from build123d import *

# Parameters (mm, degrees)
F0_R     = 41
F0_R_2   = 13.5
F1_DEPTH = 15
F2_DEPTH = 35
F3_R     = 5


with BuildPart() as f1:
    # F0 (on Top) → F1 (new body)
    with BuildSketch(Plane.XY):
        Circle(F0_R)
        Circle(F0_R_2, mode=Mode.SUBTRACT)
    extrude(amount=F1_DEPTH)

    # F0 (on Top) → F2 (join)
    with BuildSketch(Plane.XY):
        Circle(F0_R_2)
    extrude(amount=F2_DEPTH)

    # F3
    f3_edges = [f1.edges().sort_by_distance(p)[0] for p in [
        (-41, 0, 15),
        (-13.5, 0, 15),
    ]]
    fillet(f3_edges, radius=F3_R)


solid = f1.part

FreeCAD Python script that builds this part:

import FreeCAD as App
import Part
import Sketcher
from FreeCAD import Vector
Q = App.Units.Quantity


def edges_at(feature, points):
    """Names of the edges that pass closest to the given points."""
    edges = feature.Shape.Edges
    near = lambda p: min(range(len(edges)), key=lambda i: edges[i].distToShape(Part.Vertex(*p))[0])
    return sorted({f"Edge{near(p) + 1}" for p in points})

doc = App.newDocument("Part")
params = doc.addObject("Spreadsheet::Sheet", "Params")
for row, (alias, value) in enumerate([
    ("sketch1_diameter", "82 mm"),
    ("sketch1_diameter2", "27 mm"),
    ("pad1_length", "15 mm"),
    ("sketch2_diameter", "27 mm"),
    ("pad2_length", "35 mm"),
    ("fillet_radius", "5 mm"),
], start=1):
    params.set(f"A{row}", alias)
    params.set(f"B{row}", "=" + value)
    params.setAlias(f"B{row}", alias)

body = doc.addObject("PartDesign::Body", "Body")

sketch1 = body.newObject("Sketcher::SketchObject", "Sketch")
sketch1.AttachmentSupport = (doc.getObject("XY_Plane"), [""])
sketch1.MapMode = "FlatFace"
sketch1.addGeometry([
    Part.Circle(Vector(0, 0, 0), Vector(0, 0, 1), 41),
    Part.Circle(Vector(0, 0, 0), Vector(0, 0, 1), 14),
], False)
sketch1.addConstraint([
    Sketcher.Constraint("Coincident", 0, 3, -1, 1),
    Sketcher.Constraint("Coincident", 1, 3, -1, 1),
    Sketcher.Constraint("Diameter", 0, Q("82 mm")),
    Sketcher.Constraint("Diameter", 1, Q("27 mm")),
])
sketch1.setExpression("Constraints[2]", "Params.sketch1_diameter")
sketch1.setExpression("Constraints[3]", "Params.sketch1_diameter2")
pad1 = body.newObject("PartDesign::Pad", "Pad")
pad1.Profile = sketch1
pad1.setExpression("Length", "Params.pad1_length")

sketch2 = body.newObject("Sketcher::SketchObject", "Sketch001")
sketch2.AttachmentSupport = (doc.getObject("XY_Plane"), [""])
sketch2.MapMode = "FlatFace"
sketch2.addGeometry(Part.Circle(Vector(0, 0, 0), Vector(0, 0, 1), 14), False)
sketch2.addConstraint([
    Sketcher.Constraint("Coincident", 0, 3, -1, 1),
    Sketcher.Constraint("Diameter", 0, Q("27 mm")),
])
sketch2.setExpression("Constraints[1]", "Params.sketch2_diameter")
pad2 = body.newObject("PartDesign::Pad", "Pad001")
pad2.Profile = sketch2
pad2.setExpression("Length", "Params.pad2_length")
doc.recompute()

fillet = body.newObject("PartDesign::Fillet", "Fillet")
fillet.Base = (pad2, edges_at(pad2, [(-41, 0, 15), (-13.5, 0, 15)]))
fillet.setExpression("Radius", "Params.fillet_radius")

doc.recompute()
